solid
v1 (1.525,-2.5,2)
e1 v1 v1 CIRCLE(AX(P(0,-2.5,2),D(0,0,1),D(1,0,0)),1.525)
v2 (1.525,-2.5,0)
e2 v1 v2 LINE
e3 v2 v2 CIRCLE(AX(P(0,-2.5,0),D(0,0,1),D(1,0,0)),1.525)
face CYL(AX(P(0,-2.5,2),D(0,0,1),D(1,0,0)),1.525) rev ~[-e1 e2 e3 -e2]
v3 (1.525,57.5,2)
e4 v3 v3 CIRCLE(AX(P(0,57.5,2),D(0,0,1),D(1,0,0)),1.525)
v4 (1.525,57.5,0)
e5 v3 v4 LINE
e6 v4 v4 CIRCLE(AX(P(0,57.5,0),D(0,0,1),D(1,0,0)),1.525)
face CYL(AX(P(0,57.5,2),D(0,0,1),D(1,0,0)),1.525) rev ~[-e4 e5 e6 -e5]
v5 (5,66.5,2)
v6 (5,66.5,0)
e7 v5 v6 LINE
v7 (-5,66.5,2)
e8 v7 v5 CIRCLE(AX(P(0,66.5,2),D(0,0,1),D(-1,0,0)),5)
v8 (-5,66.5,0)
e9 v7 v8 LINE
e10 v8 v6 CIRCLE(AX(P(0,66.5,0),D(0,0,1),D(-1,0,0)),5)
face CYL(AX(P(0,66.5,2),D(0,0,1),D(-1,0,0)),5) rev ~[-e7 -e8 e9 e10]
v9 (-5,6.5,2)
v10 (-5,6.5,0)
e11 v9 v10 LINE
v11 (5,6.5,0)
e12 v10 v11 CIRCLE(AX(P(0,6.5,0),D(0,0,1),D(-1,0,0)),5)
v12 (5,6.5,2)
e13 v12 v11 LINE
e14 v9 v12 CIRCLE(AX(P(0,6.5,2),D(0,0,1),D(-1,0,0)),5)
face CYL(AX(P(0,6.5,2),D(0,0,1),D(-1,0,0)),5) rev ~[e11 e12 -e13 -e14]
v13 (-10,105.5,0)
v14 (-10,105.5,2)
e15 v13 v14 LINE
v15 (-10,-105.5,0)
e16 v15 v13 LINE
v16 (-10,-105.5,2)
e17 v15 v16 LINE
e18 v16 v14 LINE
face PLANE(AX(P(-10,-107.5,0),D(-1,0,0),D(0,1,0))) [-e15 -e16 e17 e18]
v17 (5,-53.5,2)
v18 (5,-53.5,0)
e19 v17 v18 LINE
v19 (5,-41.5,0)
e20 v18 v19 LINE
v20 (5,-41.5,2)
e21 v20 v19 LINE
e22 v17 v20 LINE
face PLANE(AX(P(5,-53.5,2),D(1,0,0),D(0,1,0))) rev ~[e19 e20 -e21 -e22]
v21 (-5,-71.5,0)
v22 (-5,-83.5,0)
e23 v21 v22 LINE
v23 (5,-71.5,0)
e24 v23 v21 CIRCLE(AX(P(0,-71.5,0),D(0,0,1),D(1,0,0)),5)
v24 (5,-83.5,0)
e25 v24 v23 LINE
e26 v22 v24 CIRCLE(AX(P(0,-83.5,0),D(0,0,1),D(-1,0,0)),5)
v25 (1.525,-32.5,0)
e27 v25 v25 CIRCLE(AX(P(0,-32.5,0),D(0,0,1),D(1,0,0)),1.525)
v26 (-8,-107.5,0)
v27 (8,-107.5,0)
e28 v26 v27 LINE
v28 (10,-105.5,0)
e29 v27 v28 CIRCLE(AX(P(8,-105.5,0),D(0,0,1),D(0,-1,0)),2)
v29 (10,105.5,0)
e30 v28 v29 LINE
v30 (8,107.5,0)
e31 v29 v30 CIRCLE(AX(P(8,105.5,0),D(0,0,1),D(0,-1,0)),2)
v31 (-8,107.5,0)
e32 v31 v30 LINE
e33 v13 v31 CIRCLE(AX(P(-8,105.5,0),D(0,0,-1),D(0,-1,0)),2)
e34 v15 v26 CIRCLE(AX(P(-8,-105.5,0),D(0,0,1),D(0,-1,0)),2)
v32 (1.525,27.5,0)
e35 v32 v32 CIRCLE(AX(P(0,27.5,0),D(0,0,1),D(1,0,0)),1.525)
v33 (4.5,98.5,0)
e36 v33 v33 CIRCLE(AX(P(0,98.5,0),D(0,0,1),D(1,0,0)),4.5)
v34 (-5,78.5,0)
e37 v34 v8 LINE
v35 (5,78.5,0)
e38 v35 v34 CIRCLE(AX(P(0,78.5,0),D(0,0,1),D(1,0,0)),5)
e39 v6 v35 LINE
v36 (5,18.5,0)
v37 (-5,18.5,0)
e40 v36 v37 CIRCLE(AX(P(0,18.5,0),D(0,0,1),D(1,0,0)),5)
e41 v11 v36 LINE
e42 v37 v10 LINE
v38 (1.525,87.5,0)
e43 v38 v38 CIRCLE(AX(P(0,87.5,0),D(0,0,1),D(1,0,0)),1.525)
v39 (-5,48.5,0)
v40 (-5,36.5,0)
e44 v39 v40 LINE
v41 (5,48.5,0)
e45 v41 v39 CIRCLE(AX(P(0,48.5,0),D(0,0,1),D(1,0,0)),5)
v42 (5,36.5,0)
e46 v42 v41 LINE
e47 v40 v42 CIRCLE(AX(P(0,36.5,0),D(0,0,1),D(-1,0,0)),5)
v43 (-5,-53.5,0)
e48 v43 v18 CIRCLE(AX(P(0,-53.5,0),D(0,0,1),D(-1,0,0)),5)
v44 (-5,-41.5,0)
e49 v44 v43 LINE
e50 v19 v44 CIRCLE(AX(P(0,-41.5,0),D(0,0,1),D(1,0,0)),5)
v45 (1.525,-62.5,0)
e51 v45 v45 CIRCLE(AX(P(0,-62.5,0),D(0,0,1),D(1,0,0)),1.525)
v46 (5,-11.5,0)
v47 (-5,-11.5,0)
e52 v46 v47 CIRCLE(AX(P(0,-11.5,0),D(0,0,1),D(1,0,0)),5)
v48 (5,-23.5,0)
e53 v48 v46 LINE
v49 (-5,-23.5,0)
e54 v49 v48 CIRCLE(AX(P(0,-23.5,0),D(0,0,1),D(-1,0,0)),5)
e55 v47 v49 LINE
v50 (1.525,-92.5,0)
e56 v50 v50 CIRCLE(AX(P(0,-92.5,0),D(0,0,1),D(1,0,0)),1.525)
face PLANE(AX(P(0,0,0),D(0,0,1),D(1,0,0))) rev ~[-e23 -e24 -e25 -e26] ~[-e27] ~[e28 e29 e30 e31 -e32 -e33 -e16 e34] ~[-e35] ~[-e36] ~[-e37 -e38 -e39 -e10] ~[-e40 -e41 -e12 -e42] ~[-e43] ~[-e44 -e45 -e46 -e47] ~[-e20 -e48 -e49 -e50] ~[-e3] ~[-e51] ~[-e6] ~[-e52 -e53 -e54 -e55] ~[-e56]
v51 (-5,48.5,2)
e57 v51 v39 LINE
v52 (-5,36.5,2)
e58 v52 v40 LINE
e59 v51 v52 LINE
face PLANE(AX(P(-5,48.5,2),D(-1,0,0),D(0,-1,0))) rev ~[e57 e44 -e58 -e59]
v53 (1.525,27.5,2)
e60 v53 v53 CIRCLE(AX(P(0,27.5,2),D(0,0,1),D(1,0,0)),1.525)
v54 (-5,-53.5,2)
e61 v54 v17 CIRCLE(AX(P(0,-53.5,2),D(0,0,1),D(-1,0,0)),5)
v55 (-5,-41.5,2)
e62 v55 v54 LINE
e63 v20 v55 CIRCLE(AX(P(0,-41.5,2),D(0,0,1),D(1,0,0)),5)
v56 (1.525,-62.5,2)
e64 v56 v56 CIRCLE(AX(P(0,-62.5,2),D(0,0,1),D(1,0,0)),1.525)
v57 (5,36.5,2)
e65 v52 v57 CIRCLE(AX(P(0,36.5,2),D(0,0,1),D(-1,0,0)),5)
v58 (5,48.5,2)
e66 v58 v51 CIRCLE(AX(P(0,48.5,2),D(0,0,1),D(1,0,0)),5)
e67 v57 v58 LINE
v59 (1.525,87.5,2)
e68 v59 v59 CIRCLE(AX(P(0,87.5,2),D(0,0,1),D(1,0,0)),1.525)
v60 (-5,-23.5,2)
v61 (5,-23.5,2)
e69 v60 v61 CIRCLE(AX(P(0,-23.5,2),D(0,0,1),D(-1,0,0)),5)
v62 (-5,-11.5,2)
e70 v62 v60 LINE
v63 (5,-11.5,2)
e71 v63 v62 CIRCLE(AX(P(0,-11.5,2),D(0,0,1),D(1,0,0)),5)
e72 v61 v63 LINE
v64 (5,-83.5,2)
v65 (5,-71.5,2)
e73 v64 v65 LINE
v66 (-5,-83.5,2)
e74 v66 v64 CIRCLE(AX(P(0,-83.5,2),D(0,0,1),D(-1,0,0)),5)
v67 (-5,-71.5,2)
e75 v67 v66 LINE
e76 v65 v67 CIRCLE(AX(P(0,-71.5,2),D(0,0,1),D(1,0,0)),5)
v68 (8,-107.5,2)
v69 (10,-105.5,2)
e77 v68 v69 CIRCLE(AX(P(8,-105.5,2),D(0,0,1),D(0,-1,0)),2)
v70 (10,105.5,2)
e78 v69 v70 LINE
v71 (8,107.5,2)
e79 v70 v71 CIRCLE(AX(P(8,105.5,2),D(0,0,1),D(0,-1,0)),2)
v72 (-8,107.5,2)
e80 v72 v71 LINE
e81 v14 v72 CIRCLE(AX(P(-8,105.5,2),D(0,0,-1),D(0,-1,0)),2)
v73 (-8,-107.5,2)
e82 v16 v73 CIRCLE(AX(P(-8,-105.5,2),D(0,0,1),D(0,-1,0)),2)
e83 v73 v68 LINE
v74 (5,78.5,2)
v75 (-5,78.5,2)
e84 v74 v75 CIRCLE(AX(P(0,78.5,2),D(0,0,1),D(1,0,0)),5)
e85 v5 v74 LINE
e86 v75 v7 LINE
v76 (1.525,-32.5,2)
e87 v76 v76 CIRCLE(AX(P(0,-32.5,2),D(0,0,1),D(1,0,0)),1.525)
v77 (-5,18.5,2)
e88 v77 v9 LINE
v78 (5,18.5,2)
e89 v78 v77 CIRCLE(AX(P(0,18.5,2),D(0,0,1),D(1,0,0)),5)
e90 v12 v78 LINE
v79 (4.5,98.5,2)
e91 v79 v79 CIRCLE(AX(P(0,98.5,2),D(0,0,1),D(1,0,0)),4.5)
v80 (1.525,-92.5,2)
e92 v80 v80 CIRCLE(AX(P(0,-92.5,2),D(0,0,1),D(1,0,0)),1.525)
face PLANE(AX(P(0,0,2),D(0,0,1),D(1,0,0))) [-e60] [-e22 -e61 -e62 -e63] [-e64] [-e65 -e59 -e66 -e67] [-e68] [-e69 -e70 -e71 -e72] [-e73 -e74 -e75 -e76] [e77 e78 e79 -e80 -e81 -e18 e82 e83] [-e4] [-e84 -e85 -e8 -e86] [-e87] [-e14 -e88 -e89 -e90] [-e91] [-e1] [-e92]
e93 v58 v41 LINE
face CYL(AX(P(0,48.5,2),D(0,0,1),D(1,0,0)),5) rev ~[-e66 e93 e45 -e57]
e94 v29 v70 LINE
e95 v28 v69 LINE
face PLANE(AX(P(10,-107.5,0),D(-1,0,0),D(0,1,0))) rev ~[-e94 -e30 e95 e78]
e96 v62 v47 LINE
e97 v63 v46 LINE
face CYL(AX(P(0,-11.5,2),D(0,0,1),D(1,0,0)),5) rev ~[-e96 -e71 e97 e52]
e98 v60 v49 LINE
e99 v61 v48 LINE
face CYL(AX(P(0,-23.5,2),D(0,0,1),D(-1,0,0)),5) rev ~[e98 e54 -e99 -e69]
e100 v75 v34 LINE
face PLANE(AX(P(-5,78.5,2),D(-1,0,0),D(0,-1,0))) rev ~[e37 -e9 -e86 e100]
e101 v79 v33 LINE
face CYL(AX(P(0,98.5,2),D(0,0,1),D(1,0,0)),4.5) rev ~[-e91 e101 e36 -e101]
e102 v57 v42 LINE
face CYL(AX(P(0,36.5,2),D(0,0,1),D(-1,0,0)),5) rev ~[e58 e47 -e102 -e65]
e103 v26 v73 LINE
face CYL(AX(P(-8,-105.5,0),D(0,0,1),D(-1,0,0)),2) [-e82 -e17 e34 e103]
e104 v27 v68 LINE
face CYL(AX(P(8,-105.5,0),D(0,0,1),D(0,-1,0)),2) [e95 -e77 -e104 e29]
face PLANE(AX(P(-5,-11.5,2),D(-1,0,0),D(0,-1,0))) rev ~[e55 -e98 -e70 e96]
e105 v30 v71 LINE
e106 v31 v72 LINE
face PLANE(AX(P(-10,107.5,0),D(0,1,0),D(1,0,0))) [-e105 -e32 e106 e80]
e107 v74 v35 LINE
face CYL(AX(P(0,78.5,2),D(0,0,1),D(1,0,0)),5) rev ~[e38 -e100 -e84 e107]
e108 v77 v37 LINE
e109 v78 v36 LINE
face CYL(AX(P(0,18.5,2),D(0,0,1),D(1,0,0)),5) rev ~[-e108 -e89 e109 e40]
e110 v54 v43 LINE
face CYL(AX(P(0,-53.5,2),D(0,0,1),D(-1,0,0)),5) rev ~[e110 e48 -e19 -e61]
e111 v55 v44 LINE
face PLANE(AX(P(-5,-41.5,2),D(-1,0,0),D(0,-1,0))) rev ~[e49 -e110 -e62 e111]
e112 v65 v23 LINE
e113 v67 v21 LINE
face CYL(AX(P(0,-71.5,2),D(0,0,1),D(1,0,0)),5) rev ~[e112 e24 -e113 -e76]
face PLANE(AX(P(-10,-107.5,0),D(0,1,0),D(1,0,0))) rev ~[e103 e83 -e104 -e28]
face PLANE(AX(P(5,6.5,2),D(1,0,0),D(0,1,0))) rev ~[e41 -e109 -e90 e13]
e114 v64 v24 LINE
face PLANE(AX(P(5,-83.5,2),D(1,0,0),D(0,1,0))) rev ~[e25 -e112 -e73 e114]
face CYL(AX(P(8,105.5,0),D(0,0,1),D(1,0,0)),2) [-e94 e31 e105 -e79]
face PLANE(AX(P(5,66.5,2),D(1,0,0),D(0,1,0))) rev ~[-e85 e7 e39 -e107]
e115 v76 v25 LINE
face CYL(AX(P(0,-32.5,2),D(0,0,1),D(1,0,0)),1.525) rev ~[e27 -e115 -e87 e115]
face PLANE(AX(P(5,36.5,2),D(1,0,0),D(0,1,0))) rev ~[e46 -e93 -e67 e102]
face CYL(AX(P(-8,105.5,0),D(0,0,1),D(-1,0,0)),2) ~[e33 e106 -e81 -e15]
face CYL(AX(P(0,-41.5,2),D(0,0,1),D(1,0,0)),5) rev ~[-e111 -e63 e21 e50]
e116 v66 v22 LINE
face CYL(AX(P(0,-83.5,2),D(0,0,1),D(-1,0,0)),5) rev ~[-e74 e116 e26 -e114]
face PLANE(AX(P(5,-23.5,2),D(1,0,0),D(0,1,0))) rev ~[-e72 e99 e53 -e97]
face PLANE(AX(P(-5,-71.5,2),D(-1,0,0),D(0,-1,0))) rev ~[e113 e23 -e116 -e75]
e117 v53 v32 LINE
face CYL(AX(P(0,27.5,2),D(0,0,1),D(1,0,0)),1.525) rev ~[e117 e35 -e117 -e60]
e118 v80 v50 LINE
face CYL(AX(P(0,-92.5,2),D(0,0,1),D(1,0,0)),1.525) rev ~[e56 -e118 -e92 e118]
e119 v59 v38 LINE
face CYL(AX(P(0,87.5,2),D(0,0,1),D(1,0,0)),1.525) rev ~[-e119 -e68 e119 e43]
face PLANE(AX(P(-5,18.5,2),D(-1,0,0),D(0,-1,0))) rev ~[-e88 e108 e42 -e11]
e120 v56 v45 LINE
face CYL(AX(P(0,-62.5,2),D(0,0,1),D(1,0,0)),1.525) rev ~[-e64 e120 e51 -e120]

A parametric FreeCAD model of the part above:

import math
import FreeCAD as App
import Part
import Sketcher
from FreeCAD import Vector


def edges_at(feature, points):
    """Names of the edges that pass closest to the given points."""
    edges = feature.Shape.Edges
    near = lambda p: min(range(len(edges)), key=lambda i: edges[i].distToShape(Part.Vertex(*p))[0])
    return sorted({f"Edge{near(p) + 1}" for p in points})


def add_polygon(sketch, points):
    """Adds a closed chain of lines whose ends are joined by coincident constraints."""
    first, n = sketch.GeometryCount, len(points)
    for a, b in zip(points, points[1:] + points[:1]):
        sketch.addGeometry(Part.LineSegment(App.Vector(*a, 0), App.Vector(*b, 0)), False)
    for i in range(n):
        sketch.addConstraint(Sketcher.Constraint("Coincident", first + i, 2, first + (i + 1) % n, 1))

doc = App.newDocument("Part")
body = doc.addObject("PartDesign::Body", "Body")

sketch1 = body.newObject("Sketcher::SketchObject", "Sketch")
sketch1.AttachmentSupport = (doc.getObject("XY_Plane"), [""])
sketch1.MapMode = "FlatFace"
add_polygon(sketch1, [(-10, 107.5), (-10, -107.5), (10, -107.5), (10, 107.5)])
sketch1.addConstraint(Sketcher.Constraint("Vertical", 0))
sketch1.addConstraint(Sketcher.Constraint("Horizontal", 1))
sketch1.addConstraint(Sketcher.Constraint("Vertical", 2))
sketch1.addConstraint(Sketcher.Constraint("Horizontal", 3))
sketch1.addConstraint(Sketcher.Constraint("Symmetric", 0, 2, 2, 2, -1, 1))
sketch1.addConstraint(Sketcher.Constraint("DistanceX", 1, 1, 1, 2, 20.0))
sketch1.addConstraint(Sketcher.Constraint("DistanceY", 0, 2, 0, 1, 215.0))
pad1 = body.newObject("PartDesign::Pad", "Pad")
pad1.Profile = sketch1
pad1.Length = 2
doc.recompute()

fillet = body.newObject("PartDesign::Fillet", "Fillet")
fillet.Base = (pad1, edges_at(pad1, [
    (10, -107.5, 1),
    (-10, -107.5, 1),
    (-10, 107.5, 1),
    (10, 107.5, 1),
]))
fillet.Radius = 2

sketch2 = body.newObject("Sketcher::SketchObject", "Sketch001")
sketch2.AttachmentSupport = (doc.getObject("XY_Plane"), [""])
sketch2.MapMode = "FlatFace"
sketch2.AttachmentOffset = App.Placement(Vector(0, 0, 2), App.Rotation())
sketch2.addGeometry(Part.Circle(Vector(0, 87.5, 0), Vector(0, 0, 1), 1.525), False)
sketch2.addGeometry(Part.Circle(Vector(0, 57.5, 0), Vector(0, 0, 1), 1.525), False)
sketch2.addGeometry(Part.Circle(Vector(0, 27.5, 0), Vector(0, 0, 1), 1.525), False)
sketch2.addGeometry(Part.Circle(Vector(0, -2.5, 0), Vector(0, 0, 1), 1.525), False)
sketch2.addGeometry(Part.Circle(Vector(0, -32.5, 0), Vector(0, 0, 1), 1.525), False)
sketch2.addGeometry(Part.Circle(Vector(0, -62.5, 0), Vector(0, 0, 1), 1.525), False)
sketch2.addGeometry(Part.Circle(Vector(0, -92.5, 0), Vector(0, 0, 1), 1.525), False)
sketch2.addConstraint(Sketcher.Constraint("Equal", 0, 1))
sketch2.addConstraint(Sketcher.Constraint("Equal", 1, 2))
sketch2.addConstraint(Sketcher.Constraint("Equal", 2, 3))
sketch2.addConstraint(Sketcher.Constraint("Equal", 3, 4))
sketch2.addConstraint(Sketcher.Constraint("Equal", 4, 5))
sketch2.addConstraint(Sketcher.Constraint("Equal", 5, 6))
sketch2.addConstraint(Sketcher.Constraint("PointOnObject", 0, 3, -2))
sketch2.addConstraint(Sketcher.Constraint("PointOnObject", 1, 3, -2))
sketch2.addConstraint(Sketcher.Constraint("PointOnObject", 2, 3, -2))
sketch2.addConstraint(Sketcher.Constraint("PointOnObject", 3, 3, -2))
sketch2.addConstraint(Sketcher.Constraint("PointOnObject", 4, 3, -2))
sketch2.addConstraint(Sketcher.Constraint("PointOnObject", 5, 3, -2))
sketch2.addConstraint(Sketcher.Constraint("PointOnObject", 6, 3, -2))
sketch2.addConstraint(Sketcher.Constraint("Diameter", 0, 3.05))
sketch2.addConstraint(Sketcher.Constraint("DistanceY", 1, 3, 0, 3, 30.0))
sketch2.addConstraint(Sketcher.Constraint("DistanceY", 2, 3, 1, 3, 30.0))
sketch2.addConstraint(Sketcher.Constraint("DistanceY", 3, 3, 2, 3, 30.0))
sketch2.addConstraint(Sketcher.Constraint("DistanceY", 4, 3, 3, 3, 30.0))
sketch2.addConstraint(Sketcher.Constraint("DistanceY", 5, 3, 4, 3, 30.0))
sketch2.addConstraint(Sketcher.Constraint("DistanceY", 6, 3, 5, 3, 30.0))
sketch2.addConstraint(Sketcher.Constraint("DistanceY", -1, 1, 0, 3, 87.5))
pocket1 = body.newObject("PartDesign::Pocket", "Pocket")
pocket1.Profile = sketch2
pocket1.Length = 10

sketch3 = body.newObject("Sketcher::SketchObject", "Sketch002")
sketch3.AttachmentSupport = (doc.getObject("XY_Plane"), [""])
sketch3.MapMode = "FlatFace"
sketch3.AttachmentOffset = App.Placement(Vector(0, 0, 2), App.Rotation())
sketch3.addGeometry(Part.Circle(Vector(0, 98.5, 0), Vector(0, 0, 1), 4.5), False)
sketch3.addGeometry(Part.LineSegment(Vector(5, 66.5, 0), Vector(5, 78.5, 0)), False)
sketch3.addGeometry(Part.ArcOfCircle(Part.Circle(Vector(0, 78.5, 0), Vector(0, 0, 1), 5), math.radians(0), math.radians(180)), False)
sketch3.addGeometry(Part.LineSegment(Vector(-5, 78.5, 0), Vector(-5, 66.5, 0)), False)
sketch3.addGeometry(Part.ArcOfCircle(Part.Circle(Vector(0, 66.5, 0), Vector(0, 0, 1), 5), math.radians(180), math.radians(360)), False)
sketch3.addGeometry(Part.LineSegment(Vector(5, 36.5, 0), Vector(5, 48.5, 0)), False)
sketch3.addGeometry(Part.ArcOfCircle(Part.Circle(Vector(0, 48.5, 0), Vector(0, 0, 1), 5), math.radians(0), math.radians(180)), False)
sketch3.addGeometry(Part.LineSegment(Vector(-5, 48.5, 0), Vector(-5, 36.5, 0)), False)
sketch3.addGeometry(Part.ArcOfCircle(Part.Circle(Vector(0, 36.5, 0), Vector(0, 0, 1), 5), math.radians(180), math.radians(360)), False)
sketch3.addGeometry(Part.LineSegment(Vector(5, -83.5, 0), Vector(5, -71.5, 0)), False)
sketch3.addGeometry(Part.ArcOfCircle(Part.Circle(Vector(0, -71.5, 0), Vector(0, 0, 1), 5), math.radians(0), math.radians(180)), False)
sketch3.addGeometry(Part.LineSegment(Vector(-5, -71.5, 0), Vector(-5, -83.5, 0)), False)
sketch3.addGeometry(Part.ArcOfCircle(Part.Circle(Vector(0, -83.5, 0), Vector(0, 0, 1), 5), math.radians(180), math.radians(360)), False)
sketch3.addGeometry(Part.LineSegment(Vector(5, 6.5, 0), Vector(5, 18.5, 0)), False)
sketch3.addGeometry(Part.ArcOfCircle(Part.Circle(Vector(0, 18.5, 0), Vector(0, 0, 1), 5), math.radians(0), math.radians(180)), False)
sketch3.addGeometry(Part.LineSegment(Vector(-5, 18.5, 0), Vector(-5, 6.5, 0)), False)
sketch3.addGeometry(Part.ArcOfCircle(Part.Circle(Vector(0, 6.5, 0), Vector(0, 0, 1), 5), math.radians(180), math.radians(360)), False)
sketch3.addGeometry(Part.LineSegment(Vector(5, -23.5, 0), Vector(5, -11.5, 0)), False)
sketch3.addGeometry(Part.ArcOfCircle(Part.Circle(Vector(0, -11.5, 0), Vector(0, 0, 1), 5), math.radians(0), math.radians(180)), False)
sketch3.addGeometry(Part.LineSegment(Vector(-5, -11.5, 0), Vector(-5, -23.5, 0)), False)
sketch3.addGeometry(Part.ArcOfCircle(Part.Circle(Vector(0, -23.5, 0), Vector(0, 0, 1), 5), math.radians(180), math.radians(360)), False)
sketch3.addGeometry(Part.LineSegment(Vector(5, -53.5, 0), Vector(5, -41.5, 0)), False)
sketch3.addGeometry(Part.ArcOfCircle(Part.Circle(Vector(0, -41.5, 0), Vector(0, 0, 1), 5), math.radians(0), math.radians(180)), False)
sketch3.addGeometry(Part.LineSegment(Vector(-5, -41.5, 0), Vector(-5, -53.5, 0)), False)
sketch3.addGeometry(Part.ArcOfCircle(Part.Circle(Vector(0, -53.5, 0), Vector(0, 0, 1), 5), math.radians(180), math.radians(360)), False)
sketch3.addConstraint(Sketcher.Constraint("Tangent", 1, 2, 2, 1))
sketch3.addConstraint(Sketcher.Constraint("Tangent", 2, 2, 3, 1))
sketch3.addConstraint(Sketcher.Constraint("Tangent", 3, 2, 4, 1))
sketch3.addConstraint(Sketcher.Constraint("Tangent", 4, 2, 1, 1))
sketch3.addConstraint(Sketcher.Constraint("Tangent", 5, 2, 6, 1))
sketch3.addConstraint(Sketcher.Constraint("Tangent", 6, 2, 7, 1))
sketch3.addConstraint(Sketcher.Constraint("Tangent", 7, 2, 8, 1))
sketch3.addConstraint(Sketcher.Constraint("Tangent", 8, 2, 5, 1))
sketch3.addConstraint(Sketcher.Constraint("Tangent", 9, 2, 10, 1))
sketch3.addConstraint(Sketcher.Constraint("Tangent", 10, 2, 11, 1))
sketch3.addConstraint(Sketcher.Constraint("Tangent", 11, 2, 12, 1))
sketch3.addConstraint(Sketcher.Constraint("Tangent", 12, 2, 9, 1))
sketch3.addConstraint(Sketcher.Constraint("Tangent", 13, 2, 14, 1))
sketch3.addConstraint(Sketcher.Constraint("Tangent", 14, 2, 15, 1))
sketch3.addConstraint(Sketcher.Constraint("Tangent", 15, 2, 16, 1))
sketch3.addConstraint(Sketcher.Constraint("Tangent", 16, 2, 13, 1))
sketch3.addConstraint(Sketcher.Constraint("Tangent", 17, 2, 18, 1))
sketch3.addConstraint(Sketcher.Constraint("Tangent", 18, 2, 19, 1))
sketch3.addConstraint(Sketcher.Constraint("Tangent", 19, 2, 20, 1))
sketch3.addConstraint(Sketcher.Constraint("Tangent", 20, 2, 17, 1))
sketch3.addConstraint(Sketcher.Constraint("Tangent", 21, 2, 22, 1))
sketch3.addConstraint(Sketcher.Constraint("Tangent", 22, 2, 23, 1))
sketch3.addConstraint(Sketcher.Constraint("Tangent", 23, 2, 24, 1))
sketch3.addConstraint(Sketcher.Constraint("Tangent", 24, 2, 21, 1))
sketch3.addConstraint(Sketcher.Constraint("Vertical", 1))
sketch3.addConstraint(Sketcher.Constraint("Vertical", 3))
sketch3.addConstraint(Sketcher.Constraint("Vertical", 5))
sketch3.addConstraint(Sketcher.Constraint("Vertical", 7))
sketch3.addConstraint(Sketcher.Constraint("Vertical", 9))
sketch3.addConstraint(Sketcher.Constraint("Vertical", 11))
sketch3.addConstraint(Sketcher.Constraint("Vertical", 13))
sketch3.addConstraint(Sketcher.Constraint("Vertical", 15))
sketch3.addConstraint(Sketcher.Constraint("Vertical", 17))
sketch3.addConstraint(Sketcher.Constraint("Vertical", 19))
sketch3.addConstraint(Sketcher.Constraint("Vertical", 21))
sketch3.addConstraint(Sketcher.Constraint("Vertical", 23))
sketch3.addConstraint(Sketcher.Constraint("Equal", 4, 6))
sketch3.addConstraint(Sketcher.Constraint("Equal", 8, 10))
sketch3.addConstraint(Sketcher.Constraint("Equal", 12, 14))
sketch3.addConstraint(Sketcher.Constraint("Equal", 16, 18))
sketch3.addConstraint(Sketcher.Constraint("Equal", 20, 22))
sketch3.addConstraint(Sketcher.Constraint("PointOnObject", 0, 3, -2))
sketch3.addConstraint(Sketcher.Constraint("PointOnObject", 2, 3, -2))
sketch3.addConstraint(Sketcher.Constraint("PointOnObject", 6, 3, -2))
sketch3.addConstraint(Sketcher.Constraint("PointOnObject", 10, 3, -2))
sketch3.addConstraint(Sketcher.Constraint("PointOnObject", 14, 3, -2))
sketch3.addConstraint(Sketcher.Constraint("PointOnObject", 18, 3, -2))
sketch3.addConstraint(Sketcher.Constraint("PointOnObject", 22, 3, -2))
sketch3.addConstraint(Sketcher.Constraint("Equal", 3, 5))
sketch3.addConstraint(Sketcher.Constraint("Equal", 7, 9))
sketch3.addConstraint(Sketcher.Constraint("Equal", 11, 13))
sketch3.addConstraint(Sketcher.Constraint("Equal", 15, 17))
sketch3.addConstraint(Sketcher.Constraint("Equal", 19, 21))
sketch3.addConstraint(Sketcher.Constraint("Diameter", 0, 9.0))
sketch3.addConstraint(Sketcher.Constraint("Radius", 2, 5.0))
sketch3.addConstraint(Sketcher.Constraint("DistanceY", 1, 1, 1, 2, 12.0))
sketch3.addConstraint(Sketcher.Constraint("DistanceY", 2, 3, 0, 3, 20.0))
sketch3.addConstraint(Sketcher.Constraint("DistanceY", 6, 3, 4, 3, 18.0))
sketch3.addConstraint(Sketcher.Constraint("DistanceY", 10, 3, 8, 3, 108.0))
sketch3.addConstraint(Sketcher.Constraint("DistanceY", 14, 3, 8, 3, 18.0))
sketch3.addConstraint(Sketcher.Constraint("DistanceY", 18, 3, 16, 3, 18.0))
sketch3.addConstraint(Sketcher.Constraint("DistanceY", 22, 3, 20, 3, 18.0))
sketch3.addConstraint(Sketcher.Constraint("DistanceY", -1, 1, 0, 3, 98.5))
pocket2 = body.newObject("PartDesign::Pocket", "Pocket001")
pocket2.Profile = sketch3
pocket2.Length = 10

doc.recompute()
